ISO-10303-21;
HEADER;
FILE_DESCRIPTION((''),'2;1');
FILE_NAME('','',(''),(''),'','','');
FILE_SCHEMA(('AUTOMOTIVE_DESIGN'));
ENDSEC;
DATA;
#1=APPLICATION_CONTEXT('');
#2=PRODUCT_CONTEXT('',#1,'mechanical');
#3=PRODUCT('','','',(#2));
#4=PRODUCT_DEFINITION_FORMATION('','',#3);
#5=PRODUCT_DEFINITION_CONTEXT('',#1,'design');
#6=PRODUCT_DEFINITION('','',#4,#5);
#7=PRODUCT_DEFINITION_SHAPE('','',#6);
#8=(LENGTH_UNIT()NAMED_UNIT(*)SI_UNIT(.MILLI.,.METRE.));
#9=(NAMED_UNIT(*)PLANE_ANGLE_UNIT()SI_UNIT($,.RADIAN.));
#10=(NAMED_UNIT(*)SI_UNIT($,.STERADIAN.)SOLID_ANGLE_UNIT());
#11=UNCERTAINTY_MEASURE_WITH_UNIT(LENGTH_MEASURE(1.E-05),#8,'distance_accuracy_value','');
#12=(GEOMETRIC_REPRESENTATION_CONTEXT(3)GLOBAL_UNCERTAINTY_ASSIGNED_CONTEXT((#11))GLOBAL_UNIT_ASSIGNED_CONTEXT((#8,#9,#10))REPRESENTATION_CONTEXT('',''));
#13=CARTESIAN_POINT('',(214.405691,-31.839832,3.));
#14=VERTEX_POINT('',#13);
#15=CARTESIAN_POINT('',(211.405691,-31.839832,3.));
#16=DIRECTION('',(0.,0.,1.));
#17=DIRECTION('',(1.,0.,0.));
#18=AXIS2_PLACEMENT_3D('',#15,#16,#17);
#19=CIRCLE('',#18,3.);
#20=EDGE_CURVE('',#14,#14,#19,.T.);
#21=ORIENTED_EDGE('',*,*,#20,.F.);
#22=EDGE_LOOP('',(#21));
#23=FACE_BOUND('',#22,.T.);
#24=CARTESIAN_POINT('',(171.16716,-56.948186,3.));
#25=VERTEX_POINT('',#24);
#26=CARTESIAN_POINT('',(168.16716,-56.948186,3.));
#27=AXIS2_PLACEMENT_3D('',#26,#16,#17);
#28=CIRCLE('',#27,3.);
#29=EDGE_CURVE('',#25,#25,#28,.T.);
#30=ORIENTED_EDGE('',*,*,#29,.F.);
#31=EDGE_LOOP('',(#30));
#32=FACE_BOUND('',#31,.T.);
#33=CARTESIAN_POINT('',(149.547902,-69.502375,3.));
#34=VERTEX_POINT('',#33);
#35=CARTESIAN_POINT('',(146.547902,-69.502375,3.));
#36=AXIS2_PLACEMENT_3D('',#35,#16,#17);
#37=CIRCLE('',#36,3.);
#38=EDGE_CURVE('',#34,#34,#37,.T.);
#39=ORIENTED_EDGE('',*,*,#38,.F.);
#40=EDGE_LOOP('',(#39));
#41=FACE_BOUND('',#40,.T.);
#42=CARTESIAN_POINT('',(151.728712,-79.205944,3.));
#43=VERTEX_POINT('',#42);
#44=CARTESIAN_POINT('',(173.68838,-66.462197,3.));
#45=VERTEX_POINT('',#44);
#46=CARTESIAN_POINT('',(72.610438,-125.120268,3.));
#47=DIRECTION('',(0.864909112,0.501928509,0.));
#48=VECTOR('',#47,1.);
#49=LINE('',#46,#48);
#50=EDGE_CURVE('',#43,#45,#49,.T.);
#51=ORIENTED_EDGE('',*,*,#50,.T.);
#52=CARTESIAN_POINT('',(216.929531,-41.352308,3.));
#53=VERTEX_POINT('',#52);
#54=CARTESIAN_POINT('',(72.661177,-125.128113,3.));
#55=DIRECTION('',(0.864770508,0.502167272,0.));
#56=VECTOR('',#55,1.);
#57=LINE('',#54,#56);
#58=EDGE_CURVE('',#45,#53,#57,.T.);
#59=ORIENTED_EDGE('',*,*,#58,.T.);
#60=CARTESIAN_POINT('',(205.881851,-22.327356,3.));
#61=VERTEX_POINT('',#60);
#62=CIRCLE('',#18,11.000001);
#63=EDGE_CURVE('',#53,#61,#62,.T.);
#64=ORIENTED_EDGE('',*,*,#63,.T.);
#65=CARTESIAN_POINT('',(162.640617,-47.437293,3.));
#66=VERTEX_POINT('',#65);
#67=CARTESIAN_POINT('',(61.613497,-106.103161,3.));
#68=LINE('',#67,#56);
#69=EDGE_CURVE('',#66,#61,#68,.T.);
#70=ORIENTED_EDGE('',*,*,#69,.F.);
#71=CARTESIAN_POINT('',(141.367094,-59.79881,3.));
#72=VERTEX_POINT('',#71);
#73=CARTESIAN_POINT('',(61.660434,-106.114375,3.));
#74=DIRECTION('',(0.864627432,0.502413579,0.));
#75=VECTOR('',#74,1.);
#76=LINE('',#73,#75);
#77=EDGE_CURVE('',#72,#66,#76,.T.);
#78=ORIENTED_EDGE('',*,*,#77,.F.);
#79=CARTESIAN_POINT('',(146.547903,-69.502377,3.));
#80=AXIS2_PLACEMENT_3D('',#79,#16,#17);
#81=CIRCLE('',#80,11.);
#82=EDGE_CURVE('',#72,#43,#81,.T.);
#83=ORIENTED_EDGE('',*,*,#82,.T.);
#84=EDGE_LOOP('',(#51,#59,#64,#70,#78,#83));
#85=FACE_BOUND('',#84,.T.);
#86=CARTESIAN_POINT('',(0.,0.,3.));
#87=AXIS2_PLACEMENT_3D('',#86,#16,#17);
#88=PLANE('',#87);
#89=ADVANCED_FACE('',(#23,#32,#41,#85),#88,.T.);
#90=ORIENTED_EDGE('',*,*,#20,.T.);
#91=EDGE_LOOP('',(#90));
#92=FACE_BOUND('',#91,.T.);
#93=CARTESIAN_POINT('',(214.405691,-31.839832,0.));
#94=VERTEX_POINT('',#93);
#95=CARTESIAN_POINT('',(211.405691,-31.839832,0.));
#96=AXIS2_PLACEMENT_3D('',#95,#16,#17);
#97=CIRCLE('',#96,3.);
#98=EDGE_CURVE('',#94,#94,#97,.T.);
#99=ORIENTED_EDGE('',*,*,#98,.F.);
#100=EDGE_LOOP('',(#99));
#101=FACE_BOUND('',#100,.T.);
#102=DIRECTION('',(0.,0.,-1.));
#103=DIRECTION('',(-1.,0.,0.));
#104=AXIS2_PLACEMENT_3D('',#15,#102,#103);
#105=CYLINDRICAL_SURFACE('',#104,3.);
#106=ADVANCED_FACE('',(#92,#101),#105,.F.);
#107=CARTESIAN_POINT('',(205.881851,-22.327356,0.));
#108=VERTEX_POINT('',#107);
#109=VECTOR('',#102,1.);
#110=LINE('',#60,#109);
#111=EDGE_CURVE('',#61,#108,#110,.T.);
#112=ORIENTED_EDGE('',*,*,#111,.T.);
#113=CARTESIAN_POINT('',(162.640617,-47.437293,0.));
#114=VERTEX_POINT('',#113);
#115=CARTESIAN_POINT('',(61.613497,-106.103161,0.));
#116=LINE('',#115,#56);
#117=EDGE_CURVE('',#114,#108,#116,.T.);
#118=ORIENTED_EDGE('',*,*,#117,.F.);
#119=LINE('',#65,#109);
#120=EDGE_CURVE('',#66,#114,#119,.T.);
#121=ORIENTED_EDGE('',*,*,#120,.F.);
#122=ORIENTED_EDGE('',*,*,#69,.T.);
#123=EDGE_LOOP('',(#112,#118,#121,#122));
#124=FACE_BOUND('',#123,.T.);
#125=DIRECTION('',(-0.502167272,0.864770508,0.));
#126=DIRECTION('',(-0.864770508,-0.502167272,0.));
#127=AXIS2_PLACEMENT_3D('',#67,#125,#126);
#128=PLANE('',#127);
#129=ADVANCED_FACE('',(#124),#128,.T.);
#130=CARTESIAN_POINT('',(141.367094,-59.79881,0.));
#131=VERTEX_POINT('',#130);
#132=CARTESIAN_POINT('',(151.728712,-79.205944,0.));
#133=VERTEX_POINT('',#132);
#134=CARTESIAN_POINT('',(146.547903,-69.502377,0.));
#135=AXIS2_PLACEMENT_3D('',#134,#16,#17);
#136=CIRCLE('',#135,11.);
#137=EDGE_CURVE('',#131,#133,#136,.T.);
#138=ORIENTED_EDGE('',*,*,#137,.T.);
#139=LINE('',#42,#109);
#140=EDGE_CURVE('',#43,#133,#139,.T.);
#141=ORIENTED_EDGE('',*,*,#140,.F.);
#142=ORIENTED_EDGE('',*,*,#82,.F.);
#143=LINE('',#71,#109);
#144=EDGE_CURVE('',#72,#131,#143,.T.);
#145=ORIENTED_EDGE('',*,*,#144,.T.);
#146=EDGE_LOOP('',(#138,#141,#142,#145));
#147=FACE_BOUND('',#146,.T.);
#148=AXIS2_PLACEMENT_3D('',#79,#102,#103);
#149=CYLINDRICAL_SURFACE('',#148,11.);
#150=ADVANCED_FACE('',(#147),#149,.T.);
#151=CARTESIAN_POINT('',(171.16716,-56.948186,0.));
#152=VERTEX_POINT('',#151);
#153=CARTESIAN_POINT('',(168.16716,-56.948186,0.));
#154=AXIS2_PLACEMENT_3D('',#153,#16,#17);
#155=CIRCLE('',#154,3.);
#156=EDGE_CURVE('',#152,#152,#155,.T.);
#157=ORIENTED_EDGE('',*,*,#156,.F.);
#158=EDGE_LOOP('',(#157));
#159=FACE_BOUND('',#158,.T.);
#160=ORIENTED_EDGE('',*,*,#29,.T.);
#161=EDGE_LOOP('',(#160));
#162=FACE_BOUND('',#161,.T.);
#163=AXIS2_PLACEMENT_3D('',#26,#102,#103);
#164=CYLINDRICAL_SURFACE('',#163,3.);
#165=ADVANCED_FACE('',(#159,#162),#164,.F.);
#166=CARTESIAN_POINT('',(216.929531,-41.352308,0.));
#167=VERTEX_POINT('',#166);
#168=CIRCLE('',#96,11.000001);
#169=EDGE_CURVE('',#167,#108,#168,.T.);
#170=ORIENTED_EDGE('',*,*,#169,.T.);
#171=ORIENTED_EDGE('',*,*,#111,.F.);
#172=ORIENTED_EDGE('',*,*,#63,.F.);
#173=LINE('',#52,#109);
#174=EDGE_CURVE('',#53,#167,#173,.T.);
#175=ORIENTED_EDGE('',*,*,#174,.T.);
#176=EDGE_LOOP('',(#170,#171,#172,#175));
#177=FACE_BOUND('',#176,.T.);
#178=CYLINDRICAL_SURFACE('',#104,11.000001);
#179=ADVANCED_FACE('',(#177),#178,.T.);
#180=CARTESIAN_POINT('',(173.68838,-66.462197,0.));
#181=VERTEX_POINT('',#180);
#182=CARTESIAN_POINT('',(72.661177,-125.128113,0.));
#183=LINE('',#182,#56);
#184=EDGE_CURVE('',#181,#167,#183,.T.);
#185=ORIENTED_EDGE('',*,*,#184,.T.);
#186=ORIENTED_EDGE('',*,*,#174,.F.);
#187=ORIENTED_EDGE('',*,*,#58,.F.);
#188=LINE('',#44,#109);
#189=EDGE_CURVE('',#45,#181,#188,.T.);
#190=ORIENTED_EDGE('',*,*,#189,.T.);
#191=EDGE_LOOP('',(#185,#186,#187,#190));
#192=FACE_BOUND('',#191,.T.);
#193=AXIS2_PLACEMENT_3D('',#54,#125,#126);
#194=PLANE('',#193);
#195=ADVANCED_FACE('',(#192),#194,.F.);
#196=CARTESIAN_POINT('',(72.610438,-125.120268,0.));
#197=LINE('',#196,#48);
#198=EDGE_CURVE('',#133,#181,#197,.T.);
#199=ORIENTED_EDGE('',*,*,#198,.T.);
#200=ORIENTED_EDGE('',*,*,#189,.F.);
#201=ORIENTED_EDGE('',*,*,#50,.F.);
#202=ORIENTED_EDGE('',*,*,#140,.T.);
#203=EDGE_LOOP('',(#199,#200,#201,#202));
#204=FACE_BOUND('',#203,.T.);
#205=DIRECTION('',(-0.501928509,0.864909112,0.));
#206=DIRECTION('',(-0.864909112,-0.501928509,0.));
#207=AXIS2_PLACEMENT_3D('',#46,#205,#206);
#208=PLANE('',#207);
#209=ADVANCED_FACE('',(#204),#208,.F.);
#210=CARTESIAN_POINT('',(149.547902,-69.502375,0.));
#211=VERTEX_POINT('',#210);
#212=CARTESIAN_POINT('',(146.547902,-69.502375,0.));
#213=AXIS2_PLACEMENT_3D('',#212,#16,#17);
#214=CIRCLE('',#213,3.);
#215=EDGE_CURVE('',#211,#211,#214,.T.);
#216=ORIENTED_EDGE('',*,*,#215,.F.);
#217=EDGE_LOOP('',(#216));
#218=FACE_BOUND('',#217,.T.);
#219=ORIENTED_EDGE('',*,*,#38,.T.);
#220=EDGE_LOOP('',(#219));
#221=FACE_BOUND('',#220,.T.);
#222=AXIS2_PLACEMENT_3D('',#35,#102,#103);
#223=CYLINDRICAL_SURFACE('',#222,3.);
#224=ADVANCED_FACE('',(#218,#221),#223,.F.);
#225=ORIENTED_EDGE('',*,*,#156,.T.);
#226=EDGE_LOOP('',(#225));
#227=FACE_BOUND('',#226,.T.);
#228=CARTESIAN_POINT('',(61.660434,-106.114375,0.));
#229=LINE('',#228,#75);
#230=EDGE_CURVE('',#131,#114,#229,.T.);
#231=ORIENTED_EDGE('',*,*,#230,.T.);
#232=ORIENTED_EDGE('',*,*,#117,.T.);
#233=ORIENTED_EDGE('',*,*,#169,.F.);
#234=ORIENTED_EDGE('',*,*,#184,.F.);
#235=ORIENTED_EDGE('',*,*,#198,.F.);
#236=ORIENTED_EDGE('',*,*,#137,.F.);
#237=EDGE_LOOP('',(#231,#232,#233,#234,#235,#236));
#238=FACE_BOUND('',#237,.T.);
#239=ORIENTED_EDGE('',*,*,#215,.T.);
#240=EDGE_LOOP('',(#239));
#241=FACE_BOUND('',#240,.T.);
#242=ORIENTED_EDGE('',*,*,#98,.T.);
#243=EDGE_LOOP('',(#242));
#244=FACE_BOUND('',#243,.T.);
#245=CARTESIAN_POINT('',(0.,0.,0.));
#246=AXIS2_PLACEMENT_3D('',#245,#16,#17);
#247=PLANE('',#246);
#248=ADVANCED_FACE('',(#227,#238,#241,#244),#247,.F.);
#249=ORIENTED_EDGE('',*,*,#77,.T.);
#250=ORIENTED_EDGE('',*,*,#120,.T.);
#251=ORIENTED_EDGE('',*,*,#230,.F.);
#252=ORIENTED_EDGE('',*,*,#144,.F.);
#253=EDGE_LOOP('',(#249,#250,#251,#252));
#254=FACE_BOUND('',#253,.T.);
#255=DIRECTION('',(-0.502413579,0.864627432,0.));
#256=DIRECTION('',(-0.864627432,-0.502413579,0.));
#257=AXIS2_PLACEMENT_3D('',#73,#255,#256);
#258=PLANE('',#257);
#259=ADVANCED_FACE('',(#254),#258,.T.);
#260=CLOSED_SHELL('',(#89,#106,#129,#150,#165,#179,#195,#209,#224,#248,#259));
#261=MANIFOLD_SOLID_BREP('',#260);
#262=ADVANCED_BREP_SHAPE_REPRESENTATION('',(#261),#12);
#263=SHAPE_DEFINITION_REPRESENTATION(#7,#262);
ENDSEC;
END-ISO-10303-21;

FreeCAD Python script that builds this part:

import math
import FreeCAD as App
import Part
import Sketcher
from FreeCAD import Vector

doc = App.newDocument("Part")
body = doc.addObject("PartDesign::Body", "Body")

sketch1 = doc.addObject("Sketcher::SketchObject", "Sketch")
body.addObject(sketch1)
sketch1.AttachmentSupport = (doc.XY_Plane, [""])
sketch1.MapMode = "FlatFace"
sketch1.addGeometry(Part.LineSegment(Vector(162.6, -47.4, 0), Vector(141.4, -59.8, 0)), False)
sketch1.addGeometry(Part.ArcOfCircle(Part.Circle(Vector(146.5, -69.5, 0), Vector(0, 0, 1), 11), math.radians(118), math.radians(298)), False)
sketch1.addGeometry(Part.LineSegment(Vector(151.7, -79.2, 0), Vector(152.4, -78.8, 0)), False)
sketch1.addGeometry(Part.LineSegment(Vector(152.4, -78.8, 0), Vector(173.7, -66.5, 0)), False)
sketch1.addGeometry(Part.LineSegment(Vector(173.7, -66.5, 0), Vector(216.9, -41.4, 0)), False)
sketch1.addGeometry(Part.ArcOfCircle(Part.Circle(Vector(211.4, -31.8, 0), Vector(0, 0, 1), 11), math.radians(-60), math.radians(120)), False)
sketch1.addGeometry(Part.LineSegment(Vector(205.9, -22.3, 0), Vector(162.6, -47.4, 0)), False)
sketch1.addGeometry(Part.Circle(Vector(146.5, -69.5, 0), Vector(0, 0, 1), 3), False)
sketch1.addGeometry(Part.Circle(Vector(168.2, -56.9, 0), Vector(0, 0, 1), 3), False)
sketch1.addGeometry(Part.Circle(Vector(211.4, -31.8, 0), Vector(0, 0, 1), 3), False)
sketch1.addConstraint(Sketcher.Constraint("Coincident", 0, 2, 1, 1))
sketch1.addConstraint(Sketcher.Constraint("Coincident", 1, 2, 2, 1))
sketch1.addConstraint(Sketcher.Constraint("Coincident", 2, 2, 3, 1))
sketch1.addConstraint(Sketcher.Constraint("Coincident", 3, 2, 4, 1))
sketch1.addConstraint(Sketcher.Constraint("Tangent", 4, 2, 5, 1))
sketch1.addConstraint(Sketcher.Constraint("Tangent", 5, 2, 6, 1))
sketch1.addConstraint(Sketcher.Constraint("Coincident", 6, 2, 0, 1))
sketch1.addConstraint(Sketcher.Constraint("Coincident", 7, 3, 1, 3))
sketch1.addConstraint(Sketcher.Constraint("Coincident", 9, 3, 5, 3))
sketch1.addConstraint(Sketcher.Constraint("Equal", 1, 5))
sketch1.addConstraint(Sketcher.Constraint("Equal", 7, 8))
sketch1.addConstraint(Sketcher.Constraint("Equal", 8, 9))
sketch1.addConstraint(Sketcher.Constraint("Parallel", 2, 3))
sketch1.addConstraint(Sketcher.Constraint("Parallel", 4, 6))
sketch1.addConstraint(Sketcher.Constraint("Diameter", 7, 6.0))
sketch1.addConstraint(Sketcher.Constraint("Radius", 1, 11.0))
sketch1.addConstraint(Sketcher.Constraint("DistanceX", -1, 1, 7, 3, 146.547902))
sketch1.addConstraint(Sketcher.Constraint("DistanceY", 2, 2, 7, 3, 9.312498))
sketch1.addConstraint(Sketcher.Constraint("DistanceX", 0, 2, 2, 2, 11.0355))
sketch1.addConstraint(Sketcher.Constraint("Distance", 3, 24.610431))
sketch1.addConstraint(Sketcher.Constraint("DistanceX", -1, 1, 5, 3, 211.405691))
sketch1.addConstraint(Sketcher.Constraint("DistanceX", -1, 1, 8, 3, 168.16716))
sketch1.addConstraint(Sketcher.Constraint("DistanceY", 0, 2, -1, 1, 59.79881))
sketch1.addConstraint(Sketcher.Constraint("DistanceX", -1, 1, 1, 2, 151.728712))
sketch1.addConstraint(Sketcher.Constraint("DistanceX", -1, 1, 3, 2, 173.68838))
sketch1.addConstraint(Sketcher.Constraint("DistanceX", -1, 1, 4, 2, 216.929531))
sketch1.addConstraint(Sketcher.Constraint("DistanceY", 1, 3, 8, 3, 12.554191))
sketch1.addConstraint(Sketcher.Constraint("Distance", 0, 24.604266))
pad1 = doc.addObject("PartDesign::Pad", "Pad")
body.addObject(pad1)
pad1.Profile = sketch1
pad1.Length = 3

doc.recompute()
